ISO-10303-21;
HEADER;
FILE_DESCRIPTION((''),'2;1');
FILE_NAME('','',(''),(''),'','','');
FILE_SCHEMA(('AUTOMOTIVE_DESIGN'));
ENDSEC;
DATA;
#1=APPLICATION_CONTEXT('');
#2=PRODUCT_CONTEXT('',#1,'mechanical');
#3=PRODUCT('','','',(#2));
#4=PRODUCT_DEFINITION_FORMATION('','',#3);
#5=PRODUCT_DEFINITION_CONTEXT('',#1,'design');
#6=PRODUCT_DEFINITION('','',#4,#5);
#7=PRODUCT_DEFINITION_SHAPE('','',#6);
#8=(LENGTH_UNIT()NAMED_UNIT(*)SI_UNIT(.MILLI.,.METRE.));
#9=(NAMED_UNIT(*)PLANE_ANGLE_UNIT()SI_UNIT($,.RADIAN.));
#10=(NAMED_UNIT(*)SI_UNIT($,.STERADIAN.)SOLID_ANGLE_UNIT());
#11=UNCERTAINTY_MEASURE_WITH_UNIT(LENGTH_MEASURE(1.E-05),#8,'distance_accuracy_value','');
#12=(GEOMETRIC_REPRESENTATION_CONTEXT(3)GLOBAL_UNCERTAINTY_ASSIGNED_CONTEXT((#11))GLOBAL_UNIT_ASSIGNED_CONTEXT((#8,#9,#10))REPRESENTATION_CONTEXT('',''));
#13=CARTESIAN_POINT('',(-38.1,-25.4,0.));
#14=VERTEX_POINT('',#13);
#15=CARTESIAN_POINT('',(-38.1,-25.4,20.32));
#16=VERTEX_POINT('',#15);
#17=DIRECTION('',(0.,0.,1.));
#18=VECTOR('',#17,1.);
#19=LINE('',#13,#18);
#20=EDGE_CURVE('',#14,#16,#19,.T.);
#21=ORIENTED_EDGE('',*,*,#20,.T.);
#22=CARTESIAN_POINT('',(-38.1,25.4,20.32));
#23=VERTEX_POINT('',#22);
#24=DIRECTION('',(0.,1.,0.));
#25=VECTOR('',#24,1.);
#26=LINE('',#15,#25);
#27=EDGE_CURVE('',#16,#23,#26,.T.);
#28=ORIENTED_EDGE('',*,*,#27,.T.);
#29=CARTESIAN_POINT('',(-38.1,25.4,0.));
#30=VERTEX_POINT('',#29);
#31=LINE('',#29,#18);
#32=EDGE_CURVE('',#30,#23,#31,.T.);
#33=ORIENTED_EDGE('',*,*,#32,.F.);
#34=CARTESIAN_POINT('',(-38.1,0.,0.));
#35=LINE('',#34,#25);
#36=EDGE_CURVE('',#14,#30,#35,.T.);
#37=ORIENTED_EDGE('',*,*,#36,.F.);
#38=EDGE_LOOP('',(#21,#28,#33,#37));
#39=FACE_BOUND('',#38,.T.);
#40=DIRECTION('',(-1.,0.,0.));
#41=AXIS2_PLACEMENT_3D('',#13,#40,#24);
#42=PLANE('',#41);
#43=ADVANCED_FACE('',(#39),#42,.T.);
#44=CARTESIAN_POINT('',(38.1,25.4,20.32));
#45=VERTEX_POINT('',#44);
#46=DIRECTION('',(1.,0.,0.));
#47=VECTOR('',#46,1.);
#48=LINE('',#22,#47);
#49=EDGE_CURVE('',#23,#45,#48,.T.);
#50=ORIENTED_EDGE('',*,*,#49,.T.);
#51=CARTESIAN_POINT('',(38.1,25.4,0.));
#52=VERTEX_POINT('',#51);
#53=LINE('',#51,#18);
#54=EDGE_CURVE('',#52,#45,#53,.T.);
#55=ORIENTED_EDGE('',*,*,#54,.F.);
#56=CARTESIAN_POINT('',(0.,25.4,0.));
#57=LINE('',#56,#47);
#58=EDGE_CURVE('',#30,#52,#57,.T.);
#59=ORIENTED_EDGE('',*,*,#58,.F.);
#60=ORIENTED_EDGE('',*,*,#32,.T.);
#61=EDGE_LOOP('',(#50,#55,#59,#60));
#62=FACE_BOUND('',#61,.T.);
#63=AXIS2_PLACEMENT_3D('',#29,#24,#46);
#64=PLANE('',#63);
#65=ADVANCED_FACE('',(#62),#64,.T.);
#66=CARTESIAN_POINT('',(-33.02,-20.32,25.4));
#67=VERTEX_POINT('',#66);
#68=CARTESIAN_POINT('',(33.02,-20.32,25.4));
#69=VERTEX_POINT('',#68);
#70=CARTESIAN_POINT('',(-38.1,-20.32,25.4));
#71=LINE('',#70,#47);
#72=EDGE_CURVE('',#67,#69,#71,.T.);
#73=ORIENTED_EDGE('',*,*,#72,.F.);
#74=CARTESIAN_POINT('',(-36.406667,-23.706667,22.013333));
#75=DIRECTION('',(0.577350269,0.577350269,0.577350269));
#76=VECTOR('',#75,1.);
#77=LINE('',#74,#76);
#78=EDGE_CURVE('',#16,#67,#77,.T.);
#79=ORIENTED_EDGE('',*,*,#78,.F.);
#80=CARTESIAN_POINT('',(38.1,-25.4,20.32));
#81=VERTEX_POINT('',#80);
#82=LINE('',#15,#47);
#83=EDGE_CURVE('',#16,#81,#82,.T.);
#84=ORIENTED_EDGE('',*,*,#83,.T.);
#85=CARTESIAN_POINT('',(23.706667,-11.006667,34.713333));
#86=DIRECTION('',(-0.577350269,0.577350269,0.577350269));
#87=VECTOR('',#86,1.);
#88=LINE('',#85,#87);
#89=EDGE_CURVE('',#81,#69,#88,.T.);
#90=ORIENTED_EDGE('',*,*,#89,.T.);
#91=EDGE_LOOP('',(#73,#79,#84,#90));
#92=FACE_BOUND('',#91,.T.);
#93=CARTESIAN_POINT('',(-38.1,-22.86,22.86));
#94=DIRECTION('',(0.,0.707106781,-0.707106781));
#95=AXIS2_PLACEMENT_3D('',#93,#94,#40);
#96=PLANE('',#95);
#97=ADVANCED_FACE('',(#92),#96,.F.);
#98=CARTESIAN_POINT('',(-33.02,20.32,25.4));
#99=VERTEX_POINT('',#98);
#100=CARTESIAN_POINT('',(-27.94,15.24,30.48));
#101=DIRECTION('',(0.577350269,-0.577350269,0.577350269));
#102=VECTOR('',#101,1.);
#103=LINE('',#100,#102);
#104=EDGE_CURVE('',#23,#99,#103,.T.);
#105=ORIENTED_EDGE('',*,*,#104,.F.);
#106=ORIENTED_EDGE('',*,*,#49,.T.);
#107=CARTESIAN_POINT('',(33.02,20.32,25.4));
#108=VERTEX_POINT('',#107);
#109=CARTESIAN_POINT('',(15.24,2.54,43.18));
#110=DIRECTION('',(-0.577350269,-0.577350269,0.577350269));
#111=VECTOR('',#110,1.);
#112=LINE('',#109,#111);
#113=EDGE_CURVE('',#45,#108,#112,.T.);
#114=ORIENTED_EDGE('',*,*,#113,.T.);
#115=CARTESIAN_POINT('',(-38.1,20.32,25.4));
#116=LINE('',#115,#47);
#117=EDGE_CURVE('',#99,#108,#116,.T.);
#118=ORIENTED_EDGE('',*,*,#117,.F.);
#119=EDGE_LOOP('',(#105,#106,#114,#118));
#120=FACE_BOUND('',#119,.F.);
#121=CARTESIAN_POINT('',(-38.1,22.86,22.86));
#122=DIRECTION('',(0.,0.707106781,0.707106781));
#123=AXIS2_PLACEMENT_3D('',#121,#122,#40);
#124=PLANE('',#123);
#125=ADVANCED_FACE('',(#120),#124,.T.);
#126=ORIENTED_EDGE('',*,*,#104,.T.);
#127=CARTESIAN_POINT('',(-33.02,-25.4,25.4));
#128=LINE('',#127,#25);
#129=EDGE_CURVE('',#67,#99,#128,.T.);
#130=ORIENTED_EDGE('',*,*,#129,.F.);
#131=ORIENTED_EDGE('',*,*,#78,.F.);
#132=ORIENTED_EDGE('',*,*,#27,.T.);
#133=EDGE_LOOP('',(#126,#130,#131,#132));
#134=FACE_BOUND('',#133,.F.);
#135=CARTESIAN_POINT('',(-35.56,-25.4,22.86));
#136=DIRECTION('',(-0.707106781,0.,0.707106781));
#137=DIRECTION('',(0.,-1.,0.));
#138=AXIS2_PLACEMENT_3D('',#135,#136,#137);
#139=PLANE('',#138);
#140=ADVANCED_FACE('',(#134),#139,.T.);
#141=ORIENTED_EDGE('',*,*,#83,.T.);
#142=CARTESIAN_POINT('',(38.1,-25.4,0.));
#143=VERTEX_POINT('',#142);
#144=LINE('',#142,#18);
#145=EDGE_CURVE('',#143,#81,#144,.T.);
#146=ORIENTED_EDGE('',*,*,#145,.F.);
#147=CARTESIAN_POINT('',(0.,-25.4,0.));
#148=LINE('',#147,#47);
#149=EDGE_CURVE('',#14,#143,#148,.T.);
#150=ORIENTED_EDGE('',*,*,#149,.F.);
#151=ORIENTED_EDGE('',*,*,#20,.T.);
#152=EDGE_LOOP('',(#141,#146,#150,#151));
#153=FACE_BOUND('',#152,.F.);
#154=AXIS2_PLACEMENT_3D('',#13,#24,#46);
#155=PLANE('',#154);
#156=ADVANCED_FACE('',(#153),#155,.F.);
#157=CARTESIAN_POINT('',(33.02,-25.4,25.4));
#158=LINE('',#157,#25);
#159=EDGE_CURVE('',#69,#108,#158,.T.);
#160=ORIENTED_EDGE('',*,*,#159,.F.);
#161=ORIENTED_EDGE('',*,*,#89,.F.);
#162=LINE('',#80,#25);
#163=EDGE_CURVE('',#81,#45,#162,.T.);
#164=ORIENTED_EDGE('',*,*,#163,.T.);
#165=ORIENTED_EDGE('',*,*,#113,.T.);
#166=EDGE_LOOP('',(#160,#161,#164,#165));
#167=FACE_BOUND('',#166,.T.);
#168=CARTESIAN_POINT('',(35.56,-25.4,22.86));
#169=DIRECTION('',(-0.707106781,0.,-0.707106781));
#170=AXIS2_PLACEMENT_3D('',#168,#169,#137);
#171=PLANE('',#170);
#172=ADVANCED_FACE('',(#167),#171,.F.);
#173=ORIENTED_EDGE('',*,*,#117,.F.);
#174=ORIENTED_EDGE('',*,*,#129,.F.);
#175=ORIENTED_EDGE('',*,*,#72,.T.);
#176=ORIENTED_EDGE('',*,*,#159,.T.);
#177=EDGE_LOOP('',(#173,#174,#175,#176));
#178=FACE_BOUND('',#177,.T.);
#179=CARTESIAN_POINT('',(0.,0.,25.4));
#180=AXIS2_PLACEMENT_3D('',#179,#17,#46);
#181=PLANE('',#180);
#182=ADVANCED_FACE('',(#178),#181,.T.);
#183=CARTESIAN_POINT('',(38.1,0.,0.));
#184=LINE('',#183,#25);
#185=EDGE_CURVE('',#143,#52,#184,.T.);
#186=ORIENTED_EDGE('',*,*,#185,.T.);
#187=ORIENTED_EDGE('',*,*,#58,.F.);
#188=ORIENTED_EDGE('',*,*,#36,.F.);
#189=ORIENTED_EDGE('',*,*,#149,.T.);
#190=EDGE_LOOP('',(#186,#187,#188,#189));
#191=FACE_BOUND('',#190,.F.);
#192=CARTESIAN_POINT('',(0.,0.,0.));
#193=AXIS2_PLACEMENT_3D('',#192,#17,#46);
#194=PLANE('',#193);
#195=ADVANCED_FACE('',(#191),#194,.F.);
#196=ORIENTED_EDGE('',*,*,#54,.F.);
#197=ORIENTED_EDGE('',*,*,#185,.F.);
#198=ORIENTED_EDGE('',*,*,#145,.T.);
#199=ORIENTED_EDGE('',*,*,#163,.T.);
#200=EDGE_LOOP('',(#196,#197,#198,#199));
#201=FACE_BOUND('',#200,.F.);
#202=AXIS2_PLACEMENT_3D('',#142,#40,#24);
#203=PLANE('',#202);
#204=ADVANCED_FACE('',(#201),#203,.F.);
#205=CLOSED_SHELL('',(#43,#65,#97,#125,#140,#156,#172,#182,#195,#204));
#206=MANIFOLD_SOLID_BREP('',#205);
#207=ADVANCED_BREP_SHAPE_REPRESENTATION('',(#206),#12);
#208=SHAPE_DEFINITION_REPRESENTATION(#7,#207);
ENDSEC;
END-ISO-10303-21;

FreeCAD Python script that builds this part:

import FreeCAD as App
import Part
import Sketcher
Q = App.Units.Quantity


def edges_at(feature, points):
    """Names of the edges that pass closest to the given points."""
    edges = feature.Shape.Edges
    near = lambda p: min(range(len(edges)), key=lambda i: edges[i].distToShape(Part.Vertex(*p))[0])
    return sorted({f"Edge{near(p) + 1}" for p in points})

doc = App.newDocument("Part")
body = doc.addObject("PartDesign::Body", "Body")

# Sketch on XY plane
sketch1 = doc.addObject("Sketcher::SketchObject", "Sketch")
body.addObject(sketch1)
sketch1.AttachmentSupport = (doc.XY_Plane, [""])
sketch1.MapMode = "FlatFace"
sketch1.addGeometry([
    Part.LineSegment(App.Vector(-38, 25, 0), App.Vector(-38, -25, 0)),
    Part.LineSegment(App.Vector(-38, -25, 0), App.Vector(38, -25, 0)),
    Part.LineSegment(App.Vector(38, -25, 0), App.Vector(38, 25, 0)),
    Part.LineSegment(App.Vector(38, 25, 0), App.Vector(-38, 25, 0)),
], False)
sketch1.addConstraint([
    Sketcher.Constraint("Coincident", 0, 2, 1, 1),
    Sketcher.Constraint("Coincident", 1, 2, 2, 1),
    Sketcher.Constraint("Coincident", 2, 2, 3, 1),
    Sketcher.Constraint("Coincident", 3, 2, 0, 1),
    Sketcher.Constraint("Vertical", 0),
    Sketcher.Constraint("Horizontal", 1),
    Sketcher.Constraint("Vertical", 2),
    Sketcher.Constraint("Horizontal", 3),
    Sketcher.Constraint("Symmetric", 0, 2, 2, 2, -1, 1),
    Sketcher.Constraint("DistanceX", 1, 1, 1, 2, Q("3 in")),
    Sketcher.Constraint("DistanceY", 0, 2, 0, 1, Q("2 in")),
])
pad1 = doc.addObject("PartDesign::Pad", "Pad")
body.addObject(pad1)
pad1.Profile = sketch1
pad1.Length = Q("1 in")
doc.recompute()

chamfer = doc.addObject("PartDesign::Chamfer", "Chamfer")
body.addObject(chamfer)
chamfer.Base = (pad1, edges_at(pad1, [
    (-38.1, 0, 25.4),
    (0, -25.4, 25.4),
    (38.1, 0, 25.4),
    (0, 25.4, 25.4),
]))
chamfer.Size = Q("0.2 in")

doc.recompute()
